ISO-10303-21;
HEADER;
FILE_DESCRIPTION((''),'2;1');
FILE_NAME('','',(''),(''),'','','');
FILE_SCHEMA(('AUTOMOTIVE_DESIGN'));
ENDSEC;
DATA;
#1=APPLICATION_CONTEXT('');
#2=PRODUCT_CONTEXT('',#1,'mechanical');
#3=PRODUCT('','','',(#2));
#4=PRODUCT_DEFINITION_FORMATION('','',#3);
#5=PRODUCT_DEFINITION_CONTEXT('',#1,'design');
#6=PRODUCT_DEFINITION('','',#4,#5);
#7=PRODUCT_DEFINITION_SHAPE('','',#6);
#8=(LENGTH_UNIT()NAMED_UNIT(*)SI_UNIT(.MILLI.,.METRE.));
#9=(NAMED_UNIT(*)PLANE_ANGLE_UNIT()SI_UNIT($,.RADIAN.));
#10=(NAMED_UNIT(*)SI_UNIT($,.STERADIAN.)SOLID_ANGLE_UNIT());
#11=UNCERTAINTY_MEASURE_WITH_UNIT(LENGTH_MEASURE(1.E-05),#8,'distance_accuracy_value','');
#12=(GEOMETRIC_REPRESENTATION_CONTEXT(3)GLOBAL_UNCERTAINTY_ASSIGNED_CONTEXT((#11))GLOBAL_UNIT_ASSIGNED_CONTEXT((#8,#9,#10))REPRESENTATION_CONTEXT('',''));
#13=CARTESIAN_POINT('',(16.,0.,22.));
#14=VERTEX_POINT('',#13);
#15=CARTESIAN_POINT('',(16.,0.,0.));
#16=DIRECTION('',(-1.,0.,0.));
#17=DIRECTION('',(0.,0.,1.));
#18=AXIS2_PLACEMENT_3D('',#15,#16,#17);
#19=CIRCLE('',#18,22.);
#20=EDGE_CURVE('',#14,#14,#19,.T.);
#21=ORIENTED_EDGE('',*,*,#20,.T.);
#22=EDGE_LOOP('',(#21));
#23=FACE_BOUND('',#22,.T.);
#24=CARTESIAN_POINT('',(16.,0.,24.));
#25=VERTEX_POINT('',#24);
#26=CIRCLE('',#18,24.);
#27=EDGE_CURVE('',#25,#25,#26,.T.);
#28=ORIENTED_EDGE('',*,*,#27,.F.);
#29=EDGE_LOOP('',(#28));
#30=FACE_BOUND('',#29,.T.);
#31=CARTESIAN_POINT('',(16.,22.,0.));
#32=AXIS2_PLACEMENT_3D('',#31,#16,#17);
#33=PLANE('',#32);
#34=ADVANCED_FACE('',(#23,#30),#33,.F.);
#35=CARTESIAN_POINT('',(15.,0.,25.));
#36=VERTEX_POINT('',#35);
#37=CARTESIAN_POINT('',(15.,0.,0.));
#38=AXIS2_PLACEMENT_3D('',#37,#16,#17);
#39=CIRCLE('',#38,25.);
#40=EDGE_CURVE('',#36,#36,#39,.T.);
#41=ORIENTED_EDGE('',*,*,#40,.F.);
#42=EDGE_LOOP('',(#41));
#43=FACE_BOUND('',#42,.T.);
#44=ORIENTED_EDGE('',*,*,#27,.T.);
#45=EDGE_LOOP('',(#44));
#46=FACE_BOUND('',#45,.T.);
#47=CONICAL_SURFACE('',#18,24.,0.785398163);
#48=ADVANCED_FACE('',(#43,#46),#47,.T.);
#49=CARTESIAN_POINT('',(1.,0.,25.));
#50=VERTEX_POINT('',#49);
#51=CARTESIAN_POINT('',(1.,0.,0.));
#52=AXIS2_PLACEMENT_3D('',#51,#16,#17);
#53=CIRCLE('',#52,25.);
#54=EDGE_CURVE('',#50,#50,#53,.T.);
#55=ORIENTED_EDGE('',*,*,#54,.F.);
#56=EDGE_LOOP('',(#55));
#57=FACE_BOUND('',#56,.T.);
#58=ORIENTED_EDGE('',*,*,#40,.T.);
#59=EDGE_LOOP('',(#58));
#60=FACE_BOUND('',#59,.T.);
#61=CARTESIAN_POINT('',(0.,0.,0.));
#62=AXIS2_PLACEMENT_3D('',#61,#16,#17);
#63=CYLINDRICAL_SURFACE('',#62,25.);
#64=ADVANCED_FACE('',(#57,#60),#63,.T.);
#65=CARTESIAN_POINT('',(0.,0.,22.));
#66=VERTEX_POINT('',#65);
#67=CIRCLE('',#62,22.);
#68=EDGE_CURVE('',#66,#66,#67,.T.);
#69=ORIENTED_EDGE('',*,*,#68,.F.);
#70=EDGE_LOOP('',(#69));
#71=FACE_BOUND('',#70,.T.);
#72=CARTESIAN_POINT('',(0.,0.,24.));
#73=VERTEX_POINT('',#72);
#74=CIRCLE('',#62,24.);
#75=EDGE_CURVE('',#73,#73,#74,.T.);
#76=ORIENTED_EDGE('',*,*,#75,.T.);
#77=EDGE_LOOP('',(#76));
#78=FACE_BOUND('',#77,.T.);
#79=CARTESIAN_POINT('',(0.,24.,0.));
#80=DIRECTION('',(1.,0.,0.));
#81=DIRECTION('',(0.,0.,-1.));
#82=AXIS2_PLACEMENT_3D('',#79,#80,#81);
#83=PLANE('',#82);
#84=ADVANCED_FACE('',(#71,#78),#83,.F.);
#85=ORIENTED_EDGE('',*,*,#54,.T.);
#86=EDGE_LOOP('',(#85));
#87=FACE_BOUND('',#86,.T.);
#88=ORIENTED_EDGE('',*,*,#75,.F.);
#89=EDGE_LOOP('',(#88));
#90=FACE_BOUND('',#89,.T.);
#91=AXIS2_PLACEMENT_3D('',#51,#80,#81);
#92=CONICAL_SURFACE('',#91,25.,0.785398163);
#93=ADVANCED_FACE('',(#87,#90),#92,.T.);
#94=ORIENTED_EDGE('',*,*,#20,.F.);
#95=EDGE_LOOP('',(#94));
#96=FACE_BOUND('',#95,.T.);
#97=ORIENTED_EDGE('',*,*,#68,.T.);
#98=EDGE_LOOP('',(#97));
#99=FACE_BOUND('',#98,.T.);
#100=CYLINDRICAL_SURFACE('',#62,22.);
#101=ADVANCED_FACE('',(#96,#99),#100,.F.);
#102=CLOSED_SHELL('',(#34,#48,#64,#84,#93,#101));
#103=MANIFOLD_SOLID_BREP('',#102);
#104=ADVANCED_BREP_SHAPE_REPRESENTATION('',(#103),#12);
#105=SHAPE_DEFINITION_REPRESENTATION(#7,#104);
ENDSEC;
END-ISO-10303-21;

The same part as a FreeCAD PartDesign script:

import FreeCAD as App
import Part
import Sketcher
from FreeCAD import Vector
Q = App.Units.Quantity


def add_polygon(sketch, points):
    """Adds a closed chain of lines whose ends are joined by coincident constraints."""
    first, n = sketch.GeometryCount, len(points)
    for a, b in zip(points, points[1:] + points[:1]):
        sketch.addGeometry(Part.LineSegment(App.Vector(*a, 0), App.Vector(*b, 0)), False)
    for i in range(n):
        sketch.addConstraint(Sketcher.Constraint("Coincident", first + i, 2, first + (i + 1) % n, 1))

doc = App.newDocument("Part")
params = doc.addObject("Spreadsheet::Sheet", "Params")
for row, (alias, value) in enumerate([
    ("sketch1_width", "16 mm"),
    ("sketch1_width2", "14 mm"),
    ("sketch1_height", "2 mm"),
    ("revolution_angle", "360 deg"),
], start=1):
    params.set(f"A{row}", alias)
    params.set(f"B{row}", "=" + value)
    params.setAlias(f"B{row}", alias)

body = doc.addObject("PartDesign::Body", "Body")

sketch1 = body.newObject("Sketcher::SketchObject", "Sketch")
sketch1.AttachmentSupport = (doc.getObject("XY_Plane"), [""])
sketch1.MapMode = "FlatFace"
add_polygon(sketch1, [(0, 22), (16, 22), (16, 24), (15, 25), (1, 25), (0, 24)])
sketch1.addConstraint([
    Sketcher.Constraint("Horizontal", 0),
    Sketcher.Constraint("Vertical", 1),
    Sketcher.Constraint("Horizontal", 3),
    Sketcher.Constraint("Vertical", 5),
    Sketcher.Constraint("PointOnObject", 4, 2, -2),
    Sketcher.Constraint("Perpendicular", 2, 4),
    Sketcher.Constraint("Horizontal", 1, 2, 4, 2),
    Sketcher.Constraint("Equal", 2, 4),
    Sketcher.Constraint("DistanceX", 0, 1, 0, 2, Q("16 mm")),
    Sketcher.Constraint("DistanceX", 3, 2, 3, 1, Q("14 mm")),
    Sketcher.Constraint("DistanceY", 1, 1, 1, 2, Q("2 mm")),
    Sketcher.Constraint("DistanceY", -1, 1, 0, 2, Q("22 mm")),
])
sketch1.setExpression("Constraints[14]", "Params.sketch1_width")
sketch1.setExpression("Constraints[15]", "Params.sketch1_width2")
sketch1.setExpression("Constraints[16]", "Params.sketch1_height")
revolution = body.newObject("PartDesign::Revolution", "Revolution")
revolution.Profile = sketch1
revolution.ReferenceAxis = (sketch1, ["H_Axis"])
revolution.setExpression("Angle", "Params.revolution_angle")

doc.recompute()
